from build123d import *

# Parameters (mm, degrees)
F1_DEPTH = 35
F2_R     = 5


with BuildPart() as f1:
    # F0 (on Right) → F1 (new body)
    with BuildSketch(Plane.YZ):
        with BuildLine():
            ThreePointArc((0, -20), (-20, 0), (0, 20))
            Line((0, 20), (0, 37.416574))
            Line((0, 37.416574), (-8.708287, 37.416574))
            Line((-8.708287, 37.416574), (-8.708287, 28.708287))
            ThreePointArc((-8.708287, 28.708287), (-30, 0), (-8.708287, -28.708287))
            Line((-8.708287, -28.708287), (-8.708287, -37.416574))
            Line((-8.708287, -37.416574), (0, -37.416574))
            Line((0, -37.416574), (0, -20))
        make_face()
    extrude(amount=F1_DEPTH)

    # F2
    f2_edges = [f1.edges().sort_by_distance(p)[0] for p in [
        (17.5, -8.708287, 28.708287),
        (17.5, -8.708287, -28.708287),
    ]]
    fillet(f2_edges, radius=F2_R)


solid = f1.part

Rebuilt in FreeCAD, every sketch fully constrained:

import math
import FreeCAD as App
import Part
import Sketcher
Q = App.Units.Quantity


def edges_at(feature, points):
    """Names of the edges that pass closest to the given points."""
    edges = feature.Shape.Edges
    near = lambda p: min(range(len(edges)), key=lambda i: edges[i].distToShape(Part.Vertex(*p))[0])
    return sorted({f"Edge{near(p) + 1}" for p in points})

doc = App.newDocument("Part")
params = doc.addObject("Spreadsheet::Sheet", "Params")
for row, (alias, value) in enumerate([
    ("sketch1_radius", "20 mm"),
    ("sketch1_radius2", "30 mm"),
    ("pad1_length", "35 mm"),
    ("fillet_radius", "5 mm"),
], start=1):
    params.set(f"A{row}", alias)
    params.set(f"B{row}", "=" + value)
    params.setAlias(f"B{row}", alias)

body = doc.addObject("PartDesign::Body", "Body")

# Sketch on YZ plane
sketch1 = body.newObject("Sketcher::SketchObject", "Sketch")
sketch1.AttachmentSupport = (doc.getObject("YZ_Plane"), [""])
sketch1.MapMode = "FlatFace"
sketch1.addGeometry(Part.ArcOfCircle(Part.Circle(App.Vector(0, 0, 0), App.Vector(0, 0, 1), 20), math.radians(90), math.radians(270)), False)
sketch1.addGeometry(Part.LineSegment(App.Vector(0, 20, 0), App.Vector(0, 37, 0)), False)
sketch1.addGeometry(Part.LineSegment(App.Vector(0, 37, 0), App.Vector(-9, 37, 0)), False)
sketch1.addGeometry(Part.LineSegment(App.Vector(-9, 37, 0), App.Vector(-9, 29, 0)), False)
sketch1.addGeometry(Part.ArcOfCircle(Part.Circle(App.Vector(0, 0, 0), App.Vector(0, 0, 1), 30), math.radians(107), math.radians(253)), False)
sketch1.addGeometry(Part.LineSegment(App.Vector(-9, -29, 0), App.Vector(-9, -37, 0)), False)
sketch1.addGeometry(Part.LineSegment(App.Vector(-9, -37, 0), App.Vector(0, -37, 0)), False)
sketch1.addGeometry(Part.LineSegment(App.Vector(0, -37, 0), App.Vector(0, -20, 0)), False)
sketch1.addConstraint(Sketcher.Constraint("Coincident", 0, 1, 1, 1))
sketch1.addConstraint(Sketcher.Constraint("Coincident", 1, 2, 2, 1))
sketch1.addConstraint(Sketcher.Constraint("Coincident", 2, 2, 3, 1))
sketch1.addConstraint(Sketcher.Constraint("Coincident", 3, 2, 4, 1))
sketch1.addConstraint(Sketcher.Constraint("Coincident", 4, 2, 5, 1))
sketch1.addConstraint(Sketcher.Constraint("Coincident", 5, 2, 6, 1))
sketch1.addConstraint(Sketcher.Constraint("Coincident", 6, 2, 7, 1))
sketch1.addConstraint(Sketcher.Constraint("Coincident", 7, 2, 0, 2))
sketch1.addConstraint(Sketcher.Constraint("Vertical", 1))
sketch1.addConstraint(Sketcher.Constraint("Horizontal", 2))
sketch1.addConstraint(Sketcher.Constraint("Vertical", 3))
sketch1.addConstraint(Sketcher.Constraint("Vertical", 5))
sketch1.addConstraint(Sketcher.Constraint("Horizontal", 6))
sketch1.addConstraint(Sketcher.Constraint("Vertical", 7))
sketch1.addConstraint(Sketcher.Constraint("Coincident", 0, 3, -1, 1))
sketch1.addConstraint(Sketcher.Constraint("Coincident", 4, 3, -1, 1))
sketch1.addConstraint(Sketcher.Constraint("Symmetric", 1, 2, 6, 2, -1, 1))
sketch1.addConstraint(Sketcher.Constraint("PointOnObject", 0, 1, -2))
sketch1.addConstraint(Sketcher.Constraint("Vertical", 3, 2, 4, 2))
sketch1.addConstraint(Sketcher.Constraint("Equal", 6, 3))
sketch1.addConstraint(Sketcher.Constraint("Radius", 0, Q("20 mm")))
sketch1.addConstraint(Sketcher.Constraint("Radius", 4, Q("30 mm")))
sketch1.addConstraint(Sketcher.Constraint("DistanceX", 2, 2, 2, 1, Q("8.708287 mm")))
sketch1.setExpression("Constraints[20]", "Params.sketch1_radius")
sketch1.setExpression("Constraints[21]", "Params.sketch1_radius2")
pad1 = body.newObject("PartDesign::Pad", "Pad")
pad1.Profile = sketch1
pad1.setExpression("Length", "Params.pad1_length")
doc.recompute()

fillet = body.newObject("PartDesign::Fillet", "Fillet")
fillet.Base = (pad1, edges_at(pad1, [(17.5, -8.708, 28.708), (17.5, -8.708, -28.708)]))
fillet.setExpression("Radius", "Params.fillet_radius")

doc.recompute()
